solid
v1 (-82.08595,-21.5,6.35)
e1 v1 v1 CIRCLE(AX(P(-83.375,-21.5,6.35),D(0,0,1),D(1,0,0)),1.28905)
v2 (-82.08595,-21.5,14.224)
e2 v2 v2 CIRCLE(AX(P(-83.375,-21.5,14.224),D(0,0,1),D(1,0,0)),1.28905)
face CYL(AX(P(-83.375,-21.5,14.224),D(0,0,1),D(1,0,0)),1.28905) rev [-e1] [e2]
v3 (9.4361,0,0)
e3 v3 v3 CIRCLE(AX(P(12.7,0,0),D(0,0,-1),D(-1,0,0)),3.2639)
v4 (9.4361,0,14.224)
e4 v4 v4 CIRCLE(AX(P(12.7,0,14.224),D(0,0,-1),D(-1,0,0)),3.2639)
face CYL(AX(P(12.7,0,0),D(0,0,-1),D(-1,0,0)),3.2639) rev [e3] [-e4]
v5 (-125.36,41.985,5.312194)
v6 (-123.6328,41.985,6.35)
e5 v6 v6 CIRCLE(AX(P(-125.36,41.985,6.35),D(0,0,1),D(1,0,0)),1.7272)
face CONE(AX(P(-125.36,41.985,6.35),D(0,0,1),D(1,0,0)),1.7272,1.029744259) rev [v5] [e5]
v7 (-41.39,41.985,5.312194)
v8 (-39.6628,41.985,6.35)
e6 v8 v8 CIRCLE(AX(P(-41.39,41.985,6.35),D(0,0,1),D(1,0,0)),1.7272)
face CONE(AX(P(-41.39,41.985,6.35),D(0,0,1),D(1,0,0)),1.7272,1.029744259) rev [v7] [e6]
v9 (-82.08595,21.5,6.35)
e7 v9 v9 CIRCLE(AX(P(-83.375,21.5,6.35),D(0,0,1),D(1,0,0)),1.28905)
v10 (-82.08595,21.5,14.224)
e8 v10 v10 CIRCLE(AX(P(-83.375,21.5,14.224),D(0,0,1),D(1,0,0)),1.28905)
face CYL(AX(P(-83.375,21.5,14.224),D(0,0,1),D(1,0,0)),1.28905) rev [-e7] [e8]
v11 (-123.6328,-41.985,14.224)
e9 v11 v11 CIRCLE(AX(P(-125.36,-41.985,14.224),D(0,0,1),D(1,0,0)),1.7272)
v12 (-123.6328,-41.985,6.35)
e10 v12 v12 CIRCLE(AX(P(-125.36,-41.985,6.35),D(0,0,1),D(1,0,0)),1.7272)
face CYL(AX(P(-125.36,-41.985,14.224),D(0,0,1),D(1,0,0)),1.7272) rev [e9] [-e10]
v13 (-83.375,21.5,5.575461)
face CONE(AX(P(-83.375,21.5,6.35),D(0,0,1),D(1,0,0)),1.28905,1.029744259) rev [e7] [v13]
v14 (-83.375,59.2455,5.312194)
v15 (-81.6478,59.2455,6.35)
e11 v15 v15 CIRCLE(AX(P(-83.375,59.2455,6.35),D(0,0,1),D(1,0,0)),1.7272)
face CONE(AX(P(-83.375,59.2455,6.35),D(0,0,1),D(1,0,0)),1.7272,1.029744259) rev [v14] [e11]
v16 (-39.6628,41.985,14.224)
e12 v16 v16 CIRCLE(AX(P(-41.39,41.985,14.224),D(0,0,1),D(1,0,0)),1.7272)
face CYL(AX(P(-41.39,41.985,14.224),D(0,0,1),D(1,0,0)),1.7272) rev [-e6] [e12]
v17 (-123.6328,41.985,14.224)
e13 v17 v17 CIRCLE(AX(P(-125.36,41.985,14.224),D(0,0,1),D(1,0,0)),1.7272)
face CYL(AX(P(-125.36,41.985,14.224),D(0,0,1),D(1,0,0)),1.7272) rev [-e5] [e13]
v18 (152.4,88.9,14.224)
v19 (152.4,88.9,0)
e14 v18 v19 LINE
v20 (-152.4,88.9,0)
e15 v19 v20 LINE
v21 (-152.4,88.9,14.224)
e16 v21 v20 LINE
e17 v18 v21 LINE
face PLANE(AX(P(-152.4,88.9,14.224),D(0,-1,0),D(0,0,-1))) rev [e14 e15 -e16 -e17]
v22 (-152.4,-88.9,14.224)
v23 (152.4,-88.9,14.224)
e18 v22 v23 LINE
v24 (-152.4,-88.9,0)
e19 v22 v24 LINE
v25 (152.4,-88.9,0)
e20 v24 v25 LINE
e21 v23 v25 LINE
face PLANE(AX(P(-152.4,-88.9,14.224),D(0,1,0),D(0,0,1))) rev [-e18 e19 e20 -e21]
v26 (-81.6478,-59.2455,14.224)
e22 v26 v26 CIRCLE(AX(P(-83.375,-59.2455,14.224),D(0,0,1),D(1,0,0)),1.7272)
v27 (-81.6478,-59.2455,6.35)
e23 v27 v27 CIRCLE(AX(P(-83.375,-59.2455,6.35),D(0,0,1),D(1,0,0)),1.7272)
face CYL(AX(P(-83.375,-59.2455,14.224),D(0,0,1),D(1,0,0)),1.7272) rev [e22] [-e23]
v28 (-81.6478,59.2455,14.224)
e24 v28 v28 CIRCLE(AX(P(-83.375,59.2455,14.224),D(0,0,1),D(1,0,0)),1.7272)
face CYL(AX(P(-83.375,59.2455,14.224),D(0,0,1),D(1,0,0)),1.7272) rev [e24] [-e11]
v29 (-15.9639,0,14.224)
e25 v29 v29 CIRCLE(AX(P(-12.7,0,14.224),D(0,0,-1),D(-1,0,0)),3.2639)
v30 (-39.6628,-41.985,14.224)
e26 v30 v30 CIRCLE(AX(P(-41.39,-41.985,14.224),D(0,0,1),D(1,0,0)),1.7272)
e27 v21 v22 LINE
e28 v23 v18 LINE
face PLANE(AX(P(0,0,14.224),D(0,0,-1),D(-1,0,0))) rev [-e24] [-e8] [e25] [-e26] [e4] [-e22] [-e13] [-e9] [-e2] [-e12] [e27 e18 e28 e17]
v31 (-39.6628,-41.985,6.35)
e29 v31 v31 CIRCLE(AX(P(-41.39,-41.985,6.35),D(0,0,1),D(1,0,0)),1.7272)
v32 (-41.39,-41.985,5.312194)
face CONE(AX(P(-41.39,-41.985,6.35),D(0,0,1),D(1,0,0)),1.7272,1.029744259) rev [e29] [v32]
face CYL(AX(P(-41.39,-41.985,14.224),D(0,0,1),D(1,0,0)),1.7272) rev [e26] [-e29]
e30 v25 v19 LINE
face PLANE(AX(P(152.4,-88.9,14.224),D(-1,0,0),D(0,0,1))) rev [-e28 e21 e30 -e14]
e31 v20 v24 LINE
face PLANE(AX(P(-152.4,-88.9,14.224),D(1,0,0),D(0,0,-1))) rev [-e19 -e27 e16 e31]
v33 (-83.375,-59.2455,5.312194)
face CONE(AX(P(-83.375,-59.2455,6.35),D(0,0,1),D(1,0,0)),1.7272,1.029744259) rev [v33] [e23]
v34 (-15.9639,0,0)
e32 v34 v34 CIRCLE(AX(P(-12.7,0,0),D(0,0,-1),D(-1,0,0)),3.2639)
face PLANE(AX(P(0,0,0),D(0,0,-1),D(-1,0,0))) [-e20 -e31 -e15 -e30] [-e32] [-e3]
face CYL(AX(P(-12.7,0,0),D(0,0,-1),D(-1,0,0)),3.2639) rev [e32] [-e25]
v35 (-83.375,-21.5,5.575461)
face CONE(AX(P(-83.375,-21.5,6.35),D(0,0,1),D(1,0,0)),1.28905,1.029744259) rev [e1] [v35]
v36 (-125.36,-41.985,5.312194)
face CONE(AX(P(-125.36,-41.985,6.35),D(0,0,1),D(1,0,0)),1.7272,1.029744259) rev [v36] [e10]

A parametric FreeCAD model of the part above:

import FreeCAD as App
import Part
import Sketcher
from FreeCAD import Vector
Q = App.Units.Quantity


def add_polygon(sketch, points):
    """Adds a closed chain of lines whose ends are joined by coincident constraints."""
    first, n = sketch.GeometryCount, len(points)
    for a, b in zip(points, points[1:] + points[:1]):
        sketch.addGeometry(Part.LineSegment(App.Vector(*a, 0), App.Vector(*b, 0)), False)
    for i in range(n):
        sketch.addConstraint(Sketcher.Constraint("Coincident", first + i, 2, first + (i + 1) % n, 1))

doc = App.newDocument("Part")
body = doc.addObject("PartDesign::Body", "Body")

sketch1 = body.newObject("Sketcher::SketchObject", "Sketch")
sketch1.AttachmentSupport = (doc.getObject("XY_Plane"), [""])
sketch1.MapMode = "FlatFace"
add_polygon(sketch1, [(-152.4, 88.9), (-152.4, -88.9), (152.4, -88.9), (152.4, 88.9)])
sketch1.addConstraint([
    Sketcher.Constraint("Vertical", 0),
    Sketcher.Constraint("Horizontal", 1),
    Sketcher.Constraint("Vertical", 2),
    Sketcher.Constraint("Horizontal", 3),
    Sketcher.Constraint("Symmetric", 0, 2, 2, 2, -1, 1),
    Sketcher.Constraint("DistanceX", 1, 1, 1, 2, Q("12 in")),
    Sketcher.Constraint("DistanceY", 0, 2, 0, 1, Q("7 in")),
])
pad1 = body.newObject("PartDesign::Pad", "Pad")
pad1.Profile = sketch1
pad1.Length = Q("0.56 in")

sketch2 = body.newObject("Sketcher::SketchObject", "Sketch001")
sketch2.AttachmentSupport = (doc.getObject("XY_Plane"), [""])
sketch2.MapMode = "FlatFace"
sketch2.AttachmentOffset = App.Placement(Vector(0, 0, 0.56 * 25.4), App.Rotation())
sketch2.addGeometry([
    Part.Circle(Vector(-41.39, 41.985, 0), Vector(0, 0, 1), 1.7272),
    Part.Circle(Vector(-41.39, -41.985, 0), Vector(0, 0, 1), 1.7272),
    Part.Circle(Vector(-125.36, -41.985, 0), Vector(0, 0, 1), 1.7272),
    Part.Circle(Vector(-125.36, 41.985, 0), Vector(0, 0, 1), 1.7272),
    Part.Circle(Vector(-83.375, 59.2455, 0), Vector(0, 0, 1), 1.7272),
    Part.Circle(Vector(-83.375, -59.2455, 0), Vector(0, 0, 1), 1.7272),
], False)
sketch2.addConstraint([
    Sketcher.Constraint("Equal", 0, 1),
    Sketcher.Constraint("Equal", 1, 2),
    Sketcher.Constraint("Equal", 2, 3),
    Sketcher.Constraint("Equal", 3, 4),
    Sketcher.Constraint("Equal", 4, 5),
    Sketcher.Constraint("Symmetric", 0, 3, 1, 3, -1),
    Sketcher.Constraint("Symmetric", 2, 3, 3, 3, -1),
    Sketcher.Constraint("Symmetric", 4, 3, 5, 3, -1),
    Sketcher.Constraint("Horizontal", 1, 3, 2, 3),
    Sketcher.Constraint("Diameter", 0, Q("0.136 in")),
    Sketcher.Constraint("DistanceY", 5, 3, 4, 3, Q("4.665 in")),
    Sketcher.Constraint("DistanceX", 0, 3, -1, 1, 41.39),
    Sketcher.Constraint("DistanceY", -1, 1, 0, 3, 41.985),
    Sketcher.Constraint("DistanceX", 2, 3, -1, 1, 125.36),
    Sketcher.Constraint("DistanceX", 4, 3, -1, 1, 83.375),
])
doc.recompute()
hole = body.newObject("PartDesign::Hole", "Hole")
hole.Profile = sketch2
hole.ThreadType = "None"
hole.Diameter = Q("0.136 in")
hole.DepthType = "Dimension"
hole.Depth = Q("0.31 in")
hole.DrillPoint = "Angled"
hole.DrillPointAngle = 118

sketch3 = body.newObject("Sketcher::SketchObject", "Sketch002")
sketch3.AttachmentSupport = (doc.getObject("XY_Plane"), [""])
sketch3.MapMode = "FlatFace"
sketch3.AttachmentOffset = App.Placement(Vector(0, 0, 0.56 * 25.4), App.Rotation())
sketch3.addGeometry([
    Part.Circle(Vector(-83.375, 21.5, 0), Vector(0, 0, 1), 1.28905),
    Part.Circle(Vector(-83.375, -21.5, 0), Vector(0, 0, 1), 1.28905),
], False)
sketch3.addConstraint([
    Sketcher.Constraint("Equal", 0, 1),
    Sketcher.Constraint("Symmetric", 0, 3, 1, 3, -1),
    Sketcher.Constraint("Diameter", 0, Q("0.1015 in")),
    Sketcher.Constraint("DistanceX", 0, 3, -1, 1, 83.375),
    Sketcher.Constraint("DistanceY", -1, 1, 0, 3, 21.5),
])
doc.recompute()
hole2 = body.newObject("PartDesign::Hole", "Hole001")
hole2.Profile = sketch3
hole2.ThreadType = "None"
hole2.Diameter = Q("0.1015 in")
hole2.DepthType = "Dimension"
hole2.Depth = Q("0.31 in")
hole2.DrillPoint = "Angled"
hole2.DrillPointAngle = 118

sketch4 = body.newObject("Sketcher::SketchObject", "Sketch003")
sketch4.AttachmentSupport = (doc.getObject("XY_Plane"), [""])
sketch4.MapMode = "FlatFace"
sketch4.addGeometry([
    Part.Circle(Vector(-12.7, 0, 0), Vector(0, 0, 1), 3.2639),
    Part.Circle(Vector(12.7, 0, 0), Vector(0, 0, 1), 3.2639),
], False)
sketch4.addConstraint([
    Sketcher.Constraint("Equal", 0, 1),
    Sketcher.Constraint("Symmetric", 0, 3, 1, 3, -1, 1),
    Sketcher.Constraint("PointOnObject", 0, 3, -1),
    Sketcher.Constraint("Diameter", 0, Q("0.257 in")),
    Sketcher.Constraint("DistanceX", 0, 3, 1, 3, Q("1 in")),
])
doc.recompute()
hole3 = body.newObject("PartDesign::Hole", "Hole002")
hole3.Profile = sketch4
hole3.ThreadType = "None"
hole3.Diameter = Q("0.257 in")
hole3.DepthType = "ThroughAll"
hole3.Reversed = True

doc.recompute()
